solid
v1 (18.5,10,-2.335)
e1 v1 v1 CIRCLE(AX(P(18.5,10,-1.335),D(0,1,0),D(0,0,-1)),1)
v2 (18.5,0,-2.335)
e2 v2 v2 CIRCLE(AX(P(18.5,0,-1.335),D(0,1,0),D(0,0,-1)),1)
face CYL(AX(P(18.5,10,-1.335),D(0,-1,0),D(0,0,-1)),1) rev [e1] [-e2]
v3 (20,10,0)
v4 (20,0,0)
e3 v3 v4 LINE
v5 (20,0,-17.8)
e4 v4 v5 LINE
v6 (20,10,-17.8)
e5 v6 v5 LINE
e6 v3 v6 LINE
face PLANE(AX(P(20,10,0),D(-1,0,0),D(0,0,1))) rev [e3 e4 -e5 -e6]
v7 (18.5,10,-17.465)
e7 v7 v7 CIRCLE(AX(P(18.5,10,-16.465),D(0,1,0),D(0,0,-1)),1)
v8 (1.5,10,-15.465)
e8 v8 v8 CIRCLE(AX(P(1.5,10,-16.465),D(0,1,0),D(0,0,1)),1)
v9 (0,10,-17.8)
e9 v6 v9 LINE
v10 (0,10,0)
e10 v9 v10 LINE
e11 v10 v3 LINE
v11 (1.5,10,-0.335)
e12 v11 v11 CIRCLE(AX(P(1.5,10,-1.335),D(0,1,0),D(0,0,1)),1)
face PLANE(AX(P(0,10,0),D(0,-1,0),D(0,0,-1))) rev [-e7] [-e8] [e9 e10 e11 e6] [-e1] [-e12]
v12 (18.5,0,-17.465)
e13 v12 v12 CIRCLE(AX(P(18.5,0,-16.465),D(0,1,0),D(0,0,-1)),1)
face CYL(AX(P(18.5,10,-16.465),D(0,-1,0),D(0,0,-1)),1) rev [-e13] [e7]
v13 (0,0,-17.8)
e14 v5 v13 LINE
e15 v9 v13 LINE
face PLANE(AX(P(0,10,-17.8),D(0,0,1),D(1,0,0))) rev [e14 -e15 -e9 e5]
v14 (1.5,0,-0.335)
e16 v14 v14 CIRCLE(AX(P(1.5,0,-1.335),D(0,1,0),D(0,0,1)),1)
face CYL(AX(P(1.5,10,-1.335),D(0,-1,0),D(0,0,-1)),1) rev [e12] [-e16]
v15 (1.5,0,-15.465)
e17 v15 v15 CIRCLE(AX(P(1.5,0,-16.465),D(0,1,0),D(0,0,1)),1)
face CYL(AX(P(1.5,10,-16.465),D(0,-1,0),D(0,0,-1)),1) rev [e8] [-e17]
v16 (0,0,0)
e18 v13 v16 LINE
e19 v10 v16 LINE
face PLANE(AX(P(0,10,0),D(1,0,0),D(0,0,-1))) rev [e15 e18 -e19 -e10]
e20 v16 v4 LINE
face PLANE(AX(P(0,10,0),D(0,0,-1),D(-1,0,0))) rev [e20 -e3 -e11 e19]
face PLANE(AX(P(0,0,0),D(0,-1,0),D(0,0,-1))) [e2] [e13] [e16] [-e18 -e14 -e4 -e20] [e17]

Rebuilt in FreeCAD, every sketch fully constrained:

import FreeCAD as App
import Part
import Sketcher
Q = App.Units.Quantity


def add_polygon(sketch, points):
    """Adds a closed chain of lines whose ends are joined by coincident constraints."""
    first, n = sketch.GeometryCount, len(points)
    for a, b in zip(points, points[1:] + points[:1]):
        sketch.addGeometry(Part.LineSegment(App.Vector(*a, 0), App.Vector(*b, 0)), False)
    for i in range(n):
        sketch.addConstraint(Sketcher.Constraint("Coincident", first + i, 2, first + (i + 1) % n, 1))

doc = App.newDocument("Part")
body = doc.addObject("PartDesign::Body", "Body")

sketch1 = body.newObject("Sketcher::SketchObject", "Sketch")
sketch1.AttachmentSupport = (doc.getObject("XZ_Plane"), [""])
sketch1.MapMode = "FlatFace"
add_polygon(sketch1, [(0, -17.8), (0, 0), (20, 0), (20, -17.8)])
sketch1.addGeometry(Part.Circle(App.Vector(1.5, -1.3, 0), App.Vector(0, 0, 1), 1), False)
sketch1.addGeometry(Part.Circle(App.Vector(18.5, -1.3, 0), App.Vector(0, 0, 1), 1), False)
sketch1.addGeometry(Part.Circle(App.Vector(1.5, -16.5, 0), App.Vector(0, 0, 1), 1), False)
sketch1.addGeometry(Part.Circle(App.Vector(18.5, -16.5, 0), App.Vector(0, 0, 1), 1), False)
sketch1.addConstraint(Sketcher.Constraint("Vertical", 0))
sketch1.addConstraint(Sketcher.Constraint("Horizontal", 1))
sketch1.addConstraint(Sketcher.Constraint("Vertical", 2))
sketch1.addConstraint(Sketcher.Constraint("Horizontal", 3))
sketch1.addConstraint(Sketcher.Constraint("Coincident", 0, 2, -1, 1))
sketch1.addConstraint(Sketcher.Constraint("Equal", 4, 5))
sketch1.addConstraint(Sketcher.Constraint("Equal", 5, 6))
sketch1.addConstraint(Sketcher.Constraint("Equal", 6, 7))
sketch1.addConstraint(Sketcher.Constraint("Horizontal", 4, 3, 5, 3))
sketch1.addConstraint(Sketcher.Constraint("Horizontal", 6, 3, 7, 3))
sketch1.addConstraint(Sketcher.Constraint("Vertical", 4, 3, 6, 3))
sketch1.addConstraint(Sketcher.Constraint("Vertical", 5, 3, 7, 3))
sketch1.addConstraint(Sketcher.Constraint("Diameter", 4, Q("2 mm")))
sketch1.addConstraint(Sketcher.Constraint("DistanceX", 1, 1, 1, 2, Q("20 mm")))
sketch1.addConstraint(Sketcher.Constraint("DistanceY", 0, 1, 0, 2, Q("17.8 mm")))
sketch1.addConstraint(Sketcher.Constraint("DistanceX", 4, 3, 5, 3, Q("17 mm")))
sketch1.addConstraint(Sketcher.Constraint("DistanceX", -1, 1, 4, 3, Q("1.5 mm")))
sketch1.addConstraint(Sketcher.Constraint("DistanceY", 6, 3, 4, 3, Q("15.13 mm")))
sketch1.addConstraint(Sketcher.Constraint("DistanceY", 4, 3, -1, 1, Q("1.335 mm")))
pad1 = body.newObject("PartDesign::Pad", "Pad")
pad1.Profile = sketch1
pad1.Length = 10
pad1.Reversed = True

doc.recompute()
